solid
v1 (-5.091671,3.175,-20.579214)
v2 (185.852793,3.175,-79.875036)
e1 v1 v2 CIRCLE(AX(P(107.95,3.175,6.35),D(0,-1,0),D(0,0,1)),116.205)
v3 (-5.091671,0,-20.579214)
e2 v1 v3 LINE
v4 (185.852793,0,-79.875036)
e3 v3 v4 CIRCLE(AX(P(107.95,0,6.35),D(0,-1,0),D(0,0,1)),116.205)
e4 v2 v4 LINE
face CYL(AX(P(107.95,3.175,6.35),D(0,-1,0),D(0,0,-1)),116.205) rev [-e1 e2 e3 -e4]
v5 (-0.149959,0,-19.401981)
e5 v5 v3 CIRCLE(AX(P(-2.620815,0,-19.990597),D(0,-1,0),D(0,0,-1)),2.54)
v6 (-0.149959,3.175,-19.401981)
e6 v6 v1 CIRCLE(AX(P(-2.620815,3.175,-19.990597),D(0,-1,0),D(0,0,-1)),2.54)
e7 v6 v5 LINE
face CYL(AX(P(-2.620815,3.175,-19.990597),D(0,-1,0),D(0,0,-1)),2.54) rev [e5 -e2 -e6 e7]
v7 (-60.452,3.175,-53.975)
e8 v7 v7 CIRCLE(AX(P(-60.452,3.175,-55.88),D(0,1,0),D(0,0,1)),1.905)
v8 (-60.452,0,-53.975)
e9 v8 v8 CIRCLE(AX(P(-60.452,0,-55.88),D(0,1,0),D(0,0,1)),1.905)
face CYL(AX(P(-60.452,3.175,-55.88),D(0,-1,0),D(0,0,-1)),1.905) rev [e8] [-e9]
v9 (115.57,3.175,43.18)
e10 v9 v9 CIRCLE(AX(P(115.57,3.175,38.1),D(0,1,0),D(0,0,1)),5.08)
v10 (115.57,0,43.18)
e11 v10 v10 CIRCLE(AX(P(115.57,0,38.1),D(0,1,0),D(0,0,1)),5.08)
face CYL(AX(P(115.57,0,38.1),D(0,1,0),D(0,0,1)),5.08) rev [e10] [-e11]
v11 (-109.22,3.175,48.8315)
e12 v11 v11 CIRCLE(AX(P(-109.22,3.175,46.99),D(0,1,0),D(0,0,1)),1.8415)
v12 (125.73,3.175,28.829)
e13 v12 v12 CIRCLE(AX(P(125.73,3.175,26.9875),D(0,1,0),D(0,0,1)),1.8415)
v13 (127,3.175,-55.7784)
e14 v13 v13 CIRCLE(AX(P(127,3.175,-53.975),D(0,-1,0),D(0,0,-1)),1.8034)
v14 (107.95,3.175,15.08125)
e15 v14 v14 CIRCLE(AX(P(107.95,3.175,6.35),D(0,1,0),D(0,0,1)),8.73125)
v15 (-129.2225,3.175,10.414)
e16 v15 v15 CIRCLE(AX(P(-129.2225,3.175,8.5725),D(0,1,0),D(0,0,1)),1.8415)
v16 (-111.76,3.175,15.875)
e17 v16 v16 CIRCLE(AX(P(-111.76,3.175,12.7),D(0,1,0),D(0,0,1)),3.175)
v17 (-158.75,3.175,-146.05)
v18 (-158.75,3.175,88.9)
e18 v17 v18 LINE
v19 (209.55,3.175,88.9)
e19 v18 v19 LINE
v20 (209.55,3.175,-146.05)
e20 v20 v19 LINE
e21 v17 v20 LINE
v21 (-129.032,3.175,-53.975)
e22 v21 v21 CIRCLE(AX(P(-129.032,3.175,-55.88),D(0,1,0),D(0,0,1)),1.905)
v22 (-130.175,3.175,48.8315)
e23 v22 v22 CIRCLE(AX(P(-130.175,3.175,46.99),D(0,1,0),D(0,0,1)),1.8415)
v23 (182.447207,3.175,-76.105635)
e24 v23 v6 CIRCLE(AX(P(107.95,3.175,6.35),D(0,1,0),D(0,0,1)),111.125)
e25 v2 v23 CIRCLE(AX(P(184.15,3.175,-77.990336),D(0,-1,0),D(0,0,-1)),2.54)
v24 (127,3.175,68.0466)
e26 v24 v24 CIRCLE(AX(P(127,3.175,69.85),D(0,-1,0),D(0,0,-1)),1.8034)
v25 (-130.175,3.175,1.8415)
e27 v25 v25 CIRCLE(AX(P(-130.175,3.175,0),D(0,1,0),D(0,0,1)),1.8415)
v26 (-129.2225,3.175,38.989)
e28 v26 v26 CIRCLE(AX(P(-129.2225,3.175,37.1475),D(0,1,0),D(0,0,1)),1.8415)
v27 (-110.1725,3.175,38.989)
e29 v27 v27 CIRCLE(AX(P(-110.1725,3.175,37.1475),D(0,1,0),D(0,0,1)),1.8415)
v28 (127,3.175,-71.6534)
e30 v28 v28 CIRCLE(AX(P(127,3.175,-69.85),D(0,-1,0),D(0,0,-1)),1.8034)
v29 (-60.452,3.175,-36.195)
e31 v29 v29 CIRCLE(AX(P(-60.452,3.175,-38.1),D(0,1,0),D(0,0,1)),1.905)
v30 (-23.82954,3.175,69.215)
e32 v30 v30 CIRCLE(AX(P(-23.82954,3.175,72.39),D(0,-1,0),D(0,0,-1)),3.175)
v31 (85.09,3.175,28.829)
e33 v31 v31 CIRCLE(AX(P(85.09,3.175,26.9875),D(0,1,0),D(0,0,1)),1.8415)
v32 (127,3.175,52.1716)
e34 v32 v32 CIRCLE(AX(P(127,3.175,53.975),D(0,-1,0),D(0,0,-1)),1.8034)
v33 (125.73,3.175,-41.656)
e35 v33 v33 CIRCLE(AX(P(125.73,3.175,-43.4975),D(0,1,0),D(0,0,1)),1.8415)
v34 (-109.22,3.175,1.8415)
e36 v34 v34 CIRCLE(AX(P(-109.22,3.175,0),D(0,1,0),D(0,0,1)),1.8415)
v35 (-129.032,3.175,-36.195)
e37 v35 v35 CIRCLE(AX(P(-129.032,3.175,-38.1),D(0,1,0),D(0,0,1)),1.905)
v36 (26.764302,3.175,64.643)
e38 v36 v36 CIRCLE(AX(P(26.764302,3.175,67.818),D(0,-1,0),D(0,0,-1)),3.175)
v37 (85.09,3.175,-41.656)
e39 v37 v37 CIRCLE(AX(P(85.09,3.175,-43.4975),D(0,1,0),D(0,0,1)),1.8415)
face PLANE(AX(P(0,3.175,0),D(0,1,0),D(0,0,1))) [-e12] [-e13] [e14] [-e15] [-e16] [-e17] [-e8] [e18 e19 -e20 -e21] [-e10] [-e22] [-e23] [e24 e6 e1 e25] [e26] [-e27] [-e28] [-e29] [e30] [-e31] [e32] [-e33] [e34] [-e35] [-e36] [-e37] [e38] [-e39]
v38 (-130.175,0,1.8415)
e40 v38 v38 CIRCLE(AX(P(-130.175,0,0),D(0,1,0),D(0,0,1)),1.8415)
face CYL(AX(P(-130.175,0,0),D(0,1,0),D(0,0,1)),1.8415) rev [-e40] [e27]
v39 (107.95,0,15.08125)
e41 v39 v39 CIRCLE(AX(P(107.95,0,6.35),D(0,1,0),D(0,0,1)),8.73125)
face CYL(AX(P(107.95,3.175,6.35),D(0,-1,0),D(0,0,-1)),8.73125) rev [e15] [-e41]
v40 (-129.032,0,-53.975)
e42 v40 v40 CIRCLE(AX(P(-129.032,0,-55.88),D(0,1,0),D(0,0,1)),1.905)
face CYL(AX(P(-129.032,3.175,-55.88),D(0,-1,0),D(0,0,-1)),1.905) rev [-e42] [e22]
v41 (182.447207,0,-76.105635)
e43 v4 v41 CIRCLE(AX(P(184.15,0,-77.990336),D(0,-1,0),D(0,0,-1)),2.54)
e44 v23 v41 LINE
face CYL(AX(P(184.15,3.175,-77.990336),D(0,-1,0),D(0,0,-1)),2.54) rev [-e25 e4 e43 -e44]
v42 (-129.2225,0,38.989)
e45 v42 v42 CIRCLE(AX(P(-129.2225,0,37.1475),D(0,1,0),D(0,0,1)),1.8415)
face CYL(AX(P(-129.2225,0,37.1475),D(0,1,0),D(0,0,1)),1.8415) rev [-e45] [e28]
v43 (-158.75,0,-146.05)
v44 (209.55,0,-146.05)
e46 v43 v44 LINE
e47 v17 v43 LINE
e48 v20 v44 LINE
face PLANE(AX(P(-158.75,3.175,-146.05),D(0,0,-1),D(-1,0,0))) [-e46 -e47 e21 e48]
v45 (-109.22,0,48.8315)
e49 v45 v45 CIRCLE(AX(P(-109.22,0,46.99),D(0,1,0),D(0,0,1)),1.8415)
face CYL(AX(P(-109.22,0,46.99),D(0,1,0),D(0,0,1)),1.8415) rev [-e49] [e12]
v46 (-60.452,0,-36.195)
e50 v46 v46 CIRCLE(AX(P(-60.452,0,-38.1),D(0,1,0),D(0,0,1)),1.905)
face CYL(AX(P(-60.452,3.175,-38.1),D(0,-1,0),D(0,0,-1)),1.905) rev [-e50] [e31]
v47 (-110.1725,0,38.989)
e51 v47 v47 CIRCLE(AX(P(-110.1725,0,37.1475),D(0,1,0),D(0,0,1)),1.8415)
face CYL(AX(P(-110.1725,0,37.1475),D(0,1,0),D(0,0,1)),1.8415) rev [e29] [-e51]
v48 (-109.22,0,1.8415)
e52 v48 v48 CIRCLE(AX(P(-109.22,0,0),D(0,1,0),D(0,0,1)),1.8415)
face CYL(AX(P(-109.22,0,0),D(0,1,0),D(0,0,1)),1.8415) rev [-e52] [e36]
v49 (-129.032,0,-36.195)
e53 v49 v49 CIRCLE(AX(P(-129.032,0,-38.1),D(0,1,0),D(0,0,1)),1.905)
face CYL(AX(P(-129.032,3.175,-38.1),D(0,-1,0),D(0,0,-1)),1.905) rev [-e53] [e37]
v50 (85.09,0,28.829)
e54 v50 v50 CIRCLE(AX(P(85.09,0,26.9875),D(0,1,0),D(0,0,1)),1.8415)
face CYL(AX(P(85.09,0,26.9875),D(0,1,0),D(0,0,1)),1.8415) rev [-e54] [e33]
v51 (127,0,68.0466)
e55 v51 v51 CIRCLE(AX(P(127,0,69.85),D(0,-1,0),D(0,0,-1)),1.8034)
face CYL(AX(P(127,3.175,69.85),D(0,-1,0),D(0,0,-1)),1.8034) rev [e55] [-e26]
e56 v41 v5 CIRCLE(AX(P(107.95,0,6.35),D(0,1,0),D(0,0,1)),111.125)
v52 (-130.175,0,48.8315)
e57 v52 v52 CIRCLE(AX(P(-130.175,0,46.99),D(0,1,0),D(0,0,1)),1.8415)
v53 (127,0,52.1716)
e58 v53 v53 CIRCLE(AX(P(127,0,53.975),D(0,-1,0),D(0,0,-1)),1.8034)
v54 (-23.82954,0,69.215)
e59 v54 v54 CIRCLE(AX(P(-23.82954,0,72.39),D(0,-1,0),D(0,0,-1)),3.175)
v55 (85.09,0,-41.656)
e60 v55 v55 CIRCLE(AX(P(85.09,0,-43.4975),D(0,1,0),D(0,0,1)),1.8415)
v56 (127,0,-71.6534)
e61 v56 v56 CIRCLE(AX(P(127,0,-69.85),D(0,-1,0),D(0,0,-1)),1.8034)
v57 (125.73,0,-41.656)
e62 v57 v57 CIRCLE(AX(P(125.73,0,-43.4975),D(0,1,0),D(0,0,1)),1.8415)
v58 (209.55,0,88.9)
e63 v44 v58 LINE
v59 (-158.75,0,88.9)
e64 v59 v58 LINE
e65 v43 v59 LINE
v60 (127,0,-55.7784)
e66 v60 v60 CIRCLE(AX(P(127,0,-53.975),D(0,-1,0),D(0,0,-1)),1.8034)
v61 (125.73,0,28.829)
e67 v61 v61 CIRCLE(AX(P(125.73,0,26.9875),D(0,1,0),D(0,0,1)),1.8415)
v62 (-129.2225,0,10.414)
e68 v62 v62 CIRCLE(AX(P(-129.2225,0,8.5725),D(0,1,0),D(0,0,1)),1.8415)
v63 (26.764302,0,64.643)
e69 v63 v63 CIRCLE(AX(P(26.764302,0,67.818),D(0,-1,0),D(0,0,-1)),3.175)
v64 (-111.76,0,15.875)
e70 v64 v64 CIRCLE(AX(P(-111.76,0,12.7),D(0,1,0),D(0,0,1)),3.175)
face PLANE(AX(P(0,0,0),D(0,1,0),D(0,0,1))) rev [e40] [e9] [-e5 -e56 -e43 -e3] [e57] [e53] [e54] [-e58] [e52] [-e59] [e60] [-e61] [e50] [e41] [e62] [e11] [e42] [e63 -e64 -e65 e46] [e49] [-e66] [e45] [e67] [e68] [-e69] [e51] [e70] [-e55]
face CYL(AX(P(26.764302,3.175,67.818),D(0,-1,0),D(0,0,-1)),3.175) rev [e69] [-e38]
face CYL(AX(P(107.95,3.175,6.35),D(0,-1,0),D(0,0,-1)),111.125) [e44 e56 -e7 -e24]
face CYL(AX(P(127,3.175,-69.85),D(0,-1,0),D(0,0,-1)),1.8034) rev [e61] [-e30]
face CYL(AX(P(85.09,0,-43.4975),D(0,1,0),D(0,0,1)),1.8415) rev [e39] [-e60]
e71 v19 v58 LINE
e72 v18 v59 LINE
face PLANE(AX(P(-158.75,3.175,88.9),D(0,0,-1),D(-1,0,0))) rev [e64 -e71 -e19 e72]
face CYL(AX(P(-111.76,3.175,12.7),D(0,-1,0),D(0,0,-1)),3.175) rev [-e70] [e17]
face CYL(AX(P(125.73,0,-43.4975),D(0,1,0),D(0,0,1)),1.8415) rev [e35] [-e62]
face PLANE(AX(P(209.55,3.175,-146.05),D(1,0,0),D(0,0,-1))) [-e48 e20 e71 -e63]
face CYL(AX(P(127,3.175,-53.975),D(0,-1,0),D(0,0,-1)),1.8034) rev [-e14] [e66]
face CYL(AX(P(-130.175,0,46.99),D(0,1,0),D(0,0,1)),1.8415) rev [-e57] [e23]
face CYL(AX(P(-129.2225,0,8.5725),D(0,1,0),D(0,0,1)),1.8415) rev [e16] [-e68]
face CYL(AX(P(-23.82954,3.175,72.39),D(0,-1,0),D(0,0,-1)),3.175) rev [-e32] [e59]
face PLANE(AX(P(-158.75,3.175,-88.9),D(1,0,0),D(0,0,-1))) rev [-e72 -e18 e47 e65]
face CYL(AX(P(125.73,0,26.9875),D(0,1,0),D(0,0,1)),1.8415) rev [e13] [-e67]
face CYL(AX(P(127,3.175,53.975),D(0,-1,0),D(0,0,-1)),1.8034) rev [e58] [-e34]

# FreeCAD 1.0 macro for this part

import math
import FreeCAD as App
import Part
import Sketcher

V = App.Vector
Q = App.Units.Quantity


def add_polygon(sketch, points):
    """Adds a closed chain of lines whose ends are joined by coincident constraints."""
    first, n = sketch.GeometryCount, len(points)
    for a, b in zip(points, points[1:] + points[:1]):
        sketch.addGeometry(Part.LineSegment(App.Vector(*a, 0), App.Vector(*b, 0)), False)
    for i in range(n):
        sketch.addConstraint(Sketcher.Constraint("Coincident", first + i, 2, first + (i + 1) % n, 1))

doc = App.newDocument("Part")
body = doc.addObject("PartDesign::Body", "Body")

sketch1 = body.newObject("Sketcher::SketchObject", "Sketch")
sketch1.AttachmentSupport = (doc.getObject("XZ_Plane"), [""])
sketch1.MapMode = "FlatFace"
add_polygon(sketch1, [(-158.75, -88.9), (-158.75, 88.9), (158.75, 88.9), (158.75, -88.9)])
sketch1.addGeometry(Part.Circle(V(-111.76, 12.7, 0), V(0, 0, 1), 3.175), False)
sketch1.addGeometry(Part.Circle(V(107.95, 6.35, 0), V(0, 0, 1), 8.73125), False)
sketch1.addGeometry(Part.Circle(V(-129.032, -38.1, 0), V(0, 0, 1), 1.905), False)
sketch1.addGeometry(Part.Circle(V(-60.452, -38.1, 0), V(0, 0, 1), 1.905), False)
sketch1.addGeometry(Part.Circle(V(-129.032, -55.88, 0), V(0, 0, 1), 1.905), False)
sketch1.addGeometry(Part.Circle(V(-60.452, -55.88, 0), V(0, 0, 1), 1.905), False)
sketch1.addConstraint([
    Sketcher.Constraint("Vertical", 0),
    Sketcher.Constraint("Horizontal", 1),
    Sketcher.Constraint("Vertical", 2),
    Sketcher.Constraint("Horizontal", 3),
    Sketcher.Constraint("Equal", 6, 7),
    Sketcher.Constraint("Equal", 7, 8),
    Sketcher.Constraint("Equal", 8, 9),
    Sketcher.Constraint("Symmetric", 0, 2, 2, 2, -1, 1),
    Sketcher.Constraint("Horizontal", 6, 3, 7, 3),
    Sketcher.Constraint("Horizontal", 8, 3, 9, 3),
    Sketcher.Constraint("Vertical", 6, 3, 8, 3),
    Sketcher.Constraint("Vertical", 7, 3, 9, 3),
    Sketcher.Constraint("Diameter", 4, Q("0.25 in")),
    Sketcher.Constraint("Diameter", 6, Q("0.15 in")),
    Sketcher.Constraint("DistanceY", 0, 1, 0, 2, Q("7 in")),
    Sketcher.Constraint("Diameter", 5, Q("0.6875 in")),
    Sketcher.Constraint("DistanceX", 1, 1, 1, 2, Q("12.5 in")),
    Sketcher.Constraint("DistanceY", 6, 3, 4, 3, Q("2 in")),
    Sketcher.Constraint("DistanceY", 4, 3, 0, 2, Q("3 in")),
    Sketcher.Constraint("DistanceX", 5, 3, 1, 2, Q("2 in")),
    Sketcher.Constraint("DistanceX", 4, 3, -1, 1, Q("4.4 in")),
    Sketcher.Constraint("DistanceY", 8, 3, -1, 1, Q("2.2 in")),
    Sketcher.Constraint("DistanceX", 6, 3, 7, 3, Q("2.7 in")),
    Sketcher.Constraint("DistanceY", -1, 1, 5, 3, Q("0.25 in")),
    Sketcher.Constraint("DistanceX", 6, 3, -1, 1, Q("5.08 in")),
])
pad1 = body.newObject("PartDesign::Pad", "Pad")
pad1.Profile = sketch1
pad1.Length = Q("0.125 in")
pad1.Reversed = True

sketch2 = body.newObject("Sketcher::SketchObject", "Sketch001")
sketch2.AttachmentSupport = (doc.getObject("XZ_Plane"), [""])
sketch2.MapMode = "FlatFace"
sketch2.addGeometry([
    Part.Circle(V(-23.82954, 72.39, 0), V(0, 0, 1), 3.175),
    Part.Circle(V(26.764302, 67.818, 0), V(0, 0, 1), 3.175),
], False)
sketch2.addConstraint([
    Sketcher.Constraint("Equal", 0, 1),
    Sketcher.Constraint("Diameter", 0, Q("0.25 in")),
    Sketcher.Constraint("DistanceY", -1, 1, 0, 3, Q("2.85 in")),
    Sketcher.Constraint("DistanceY", -1, 1, 1, 3, Q("2.67 in")),
    Sketcher.Constraint("DistanceX", 0, 3, -1, 1, 23.82954),
    Sketcher.Constraint("DistanceX", 0, 3, 1, 3, 50.593842),
])
pocket1 = body.newObject("PartDesign::Pocket", "Pocket")
pocket1.Profile = sketch2
pocket1.Type = "ThroughAll"

sketch3 = body.newObject("Sketcher::SketchObject", "Sketch002")
sketch3.AttachmentSupport = (doc.getObject("XZ_Plane"), [""])
sketch3.MapMode = "FlatFace"
sketch3.AttachmentOffset = App.Placement(V(0, 0, -0.125 * 25.4), App.Rotation())
add_polygon(sketch3, [(133.35, -88.9), (133.35, 88.9), (158.75, 88.9), (158.75, -88.9)])
sketch3.addConstraint([
    Sketcher.Constraint("Vertical", 0),
    Sketcher.Constraint("Horizontal", 1),
    Sketcher.Constraint("Vertical", 2),
    Sketcher.Constraint("Horizontal", 3),
    Sketcher.Constraint("DistanceX", 1, 1, 1, 2, Q("1 in")),
    Sketcher.Constraint("DistanceY", 0, 1, 0, 2, Q("7 in")),
    Sketcher.Constraint("DistanceY", -1, 1, 0, 2, Q("3.5 in")),
    Sketcher.Constraint("DistanceX", -1, 1, 0, 2, Q("5.25 in")),
])
pocket2 = body.newObject("PartDesign::Pocket", "Pocket001")
pocket2.Profile = sketch3
pocket2.Type = "ThroughAll"
pocket2.Reversed = True

sketch4 = body.newObject("Sketcher::SketchObject", "Sketch003")
sketch4.AttachmentSupport = (doc.getObject("XZ_Plane"), [""])
sketch4.MapMode = "FlatFace"
sketch4.AttachmentOffset = App.Placement(V(0, 0, -0.125 * 25.4), App.Rotation())
sketch4.addGeometry(Part.Circle(V(115.57, 38.1, 0), V(0, 0, 1), 5.08), False)
sketch4.addConstraint([
    Sketcher.Constraint("Diameter", 0, Q("0.4 in")),
    Sketcher.Constraint("DistanceY", -1, 1, 0, 3, Q("1.5 in")),
    Sketcher.Constraint("DistanceX", -1, 1, 0, 3, Q("4.55 in")),
])
pocket3 = body.newObject("PartDesign::Pocket", "Pocket002")
pocket3.Profile = sketch4
pocket3.Type = "ThroughAll"
pocket3.Reversed = True

sketch5 = body.newObject("Sketcher::SketchObject", "Sketch004")
sketch5.AttachmentSupport = (doc.getObject("XZ_Plane"), [""])
sketch5.MapMode = "FlatFace"
sketch5.addGeometry([
    Part.Circle(V(127, 69.85, 0), V(0, 0, 1), 1.8034),
    Part.Circle(V(127, 53.975, 0), V(0, 0, 1), 1.8034),
    Part.Circle(V(127, -53.975, 0), V(0, 0, 1), 1.8034),
    Part.Circle(V(127, -69.85, 0), V(0, 0, 1), 1.8034),
], False)
sketch5.addConstraint([
    Sketcher.Constraint("Equal", 0, 1),
    Sketcher.Constraint("Equal", 1, 2),
    Sketcher.Constraint("Equal", 2, 3),
    Sketcher.Constraint("Symmetric", 1, 3, 2, 3, -1),
    Sketcher.Constraint("Symmetric", 0, 3, 3, 3, -1),
    Sketcher.Constraint("Vertical", 0, 3, 1, 3),
    Sketcher.Constraint("Diameter", 0, Q("0.142 in")),
    Sketcher.Constraint("DistanceX", -1, 1, 0, 3, Q("5 in")),
    Sketcher.Constraint("DistanceY", 3, 3, 0, 3, Q("5.5 in")),
    Sketcher.Constraint("DistanceY", 2, 3, 1, 3, Q("4.25 in")),
])
pocket4 = body.newObject("PartDesign::Pocket", "Pocket003")
pocket4.Profile = sketch5
pocket4.Type = "ThroughAll"

sketch6 = body.newObject("Sketcher::SketchObject", "Sketch005")
sketch6.AttachmentSupport = (doc.getObject("XZ_Plane"), [""])
sketch6.MapMode = "FlatFace"
sketch6.AttachmentOffset = App.Placement(V(0, 0, -0.125 * 25.4), App.Rotation())
sketch6.addGeometry([
    Part.Circle(V(125.73, -43.4975, 0), V(0, 0, 1), 1.8415),
    Part.Circle(V(85.09, -43.4975, 0), V(0, 0, 1), 1.8415),
    Part.Circle(V(85.09, 26.9875, 0), V(0, 0, 1), 1.8415),
    Part.Circle(V(125.73, 26.9875, 0), V(0, 0, 1), 1.8415),
    Part.Circle(V(-130.175, 46.99, 0), V(0, 0, 1), 1.8415),
    Part.Circle(V(-109.22, 46.99, 0), V(0, 0, 1), 1.8415),
    Part.Circle(V(-129.2225, 37.1475, 0), V(0, 0, 1), 1.8415),
    Part.Circle(V(-110.1725, 37.1475, 0), V(0, 0, 1), 1.8415),
    Part.Circle(V(-129.2225, 8.5725, 0), V(0, 0, 1), 1.8415),
    Part.Circle(V(-130.175, 0, 0), V(0, 0, 1), 1.8415),
    Part.Circle(V(-109.22, 0, 0), V(0, 0, 1), 1.8415),
], False)
sketch6.addConstraint([
    Sketcher.Constraint("Equal", 0, 1),
    Sketcher.Constraint("Equal", 1, 2),
    Sketcher.Constraint("Equal", 2, 3),
    Sketcher.Constraint("Equal", 3, 4),
    Sketcher.Constraint("Equal", 4, 5),
    Sketcher.Constraint("Equal", 5, 6),
    Sketcher.Constraint("Equal", 6, 7),
    Sketcher.Constraint("Equal", 7, 8),
    Sketcher.Constraint("Equal", 8, 9),
    Sketcher.Constraint("Equal", 9, 10),
    Sketcher.Constraint("PointOnObject", 9, 3, -1),
    Sketcher.Constraint("PointOnObject", 10, 3, -1),
    Sketcher.Constraint("Horizontal", 0, 3, 1, 3),
    Sketcher.Constraint("Horizontal", 2, 3, 3, 3),
    Sketcher.Constraint("Horizontal", 4, 3, 5, 3),
    Sketcher.Constraint("Horizontal", 6, 3, 7, 3),
    Sketcher.Constraint("Vertical", 1, 3, 2, 3),
    Sketcher.Constraint("Vertical", 0, 3, 3, 3),
    Sketcher.Constraint("Vertical", 6, 3, 8, 3),
    Sketcher.Constraint("Vertical", 4, 3, 9, 3),
    Sketcher.Constraint("Vertical", 5, 3, 10, 3),
    Sketcher.Constraint("Diameter", 0, Q("0.145 in")),
    Sketcher.Constraint("DistanceX", 5, 3, -1, 1, Q("4.3 in")),
    Sketcher.Constraint("DistanceX", 1, 3, 0, 3, Q("1.6 in")),
    Sketcher.Constraint("DistanceY", 2, 3, 6, 3, Q("0.4 in")),
    Sketcher.Constraint("DistanceX", -1, 1, 0, 3, Q("4.95 in")),
    Sketcher.Constraint("DistanceY", -1, 1, 4, 3, Q("1.85 in")),
    Sketcher.Constraint("DistanceX", 6, 3, 7, 3, Q("0.75 in")),
    Sketcher.Constraint("DistanceY", -1, 1, 2, 3, Q("1.0625 in")),
    Sketcher.Constraint("DistanceX", 4, 3, -1, 1, Q("5.125 in")),
    Sketcher.Constraint("DistanceY", 1, 3, 2, 3, Q("2.775 in")),
    Sketcher.Constraint("DistanceX", 6, 3, 2, 3, Q("8.4375 in")),
    Sketcher.Constraint("DistanceY", 8, 3, 6, 3, Q("1.125 in")),
])
pocket5 = body.newObject("PartDesign::Pocket", "Pocket004")
pocket5.Profile = sketch6
pocket5.Type = "ThroughAll"
pocket5.Reversed = True

sketch7 = body.newObject("Sketcher::SketchObject", "Sketch006")
sketch7.AttachmentSupport = (doc.getObject("XZ_Plane"), [""])
sketch7.MapMode = "FlatFace"
add_polygon(sketch7, [(133.35, 88.9), (133.35, -88.9), (-158.75, -88.9), (-158.75, -146.05), (209.55, -146.05), (209.55, 88.9)])
sketch7.addConstraint([
    Sketcher.Constraint("Vertical", 0),
    Sketcher.Constraint("Horizontal", 1),
    Sketcher.Constraint("Vertical", 2),
    Sketcher.Constraint("Horizontal", 3),
    Sketcher.Constraint("Vertical", 4),
    Sketcher.Constraint("Horizontal", 5),
    Sketcher.Constraint("DistanceX", 5, 2, 5, 1, Q("3 in")),
    Sketcher.Constraint("DistanceY", 0, 2, 0, 1, Q("7 in")),
    Sketcher.Constraint("DistanceX", 1, 2, 1, 1, Q("11.5 in")),
    Sketcher.Constraint("DistanceY", 2, 2, 2, 1, Q("2.25 in")),
    Sketcher.Constraint("DistanceY", 0, 2, -1, 1, Q("3.5 in")),
    Sketcher.Constraint("DistanceX", -1, 1, 0, 2, Q("5.25 in")),
])
pad2 = body.newObject("PartDesign::Pad", "Pad001")
pad2.Profile = sketch7
pad2.Type = "UpToLast"
pad2.Reversed = True

sketch8 = body.newObject("Sketcher::SketchObject", "Sketch007")
sketch8.AttachmentSupport = (doc.getObject("XZ_Plane"), [""])
sketch8.MapMode = "FlatFace"
sketch8.addGeometry([
    Part.ArcOfCircle(Part.Circle(V(184.15, -77.990336, 0), V(0, 0, 1), 2.54), math.radians(-47.902746), math.radians(132.097254)),
    Part.ArcOfCircle(Part.Circle(V(107.95, 6.35, 0), V(0, 0, 1), 111.125), math.radians(-166.600533), math.radians(-47.902746)),
    Part.ArcOfCircle(Part.Circle(V(-2.620815, -19.990597, 0), V(0, 0, 1), 2.54), math.radians(13.399467), math.radians(193.399467)),
    Part.ArcOfCircle(Part.Circle(V(107.95, 6.35, 0), V(0, 0, 1), 116.205), math.radians(-166.600533), math.radians(-47.902746)),
], False)
sketch8.addConstraint([
    Sketcher.Constraint("Tangent", 0, 2, 1, 2),
    Sketcher.Constraint("Tangent", 1, 1, 2, 1),
    Sketcher.Constraint("Tangent", 2, 2, 3, 1),
    Sketcher.Constraint("Tangent", 3, 2, 0, 1),
    Sketcher.Constraint("Coincident", 3, 3, 1, 3),
    Sketcher.Constraint("Radius", 0, Q("0.1 in")),
    Sketcher.Constraint("Radius", 1, Q("4.375 in")),
    Sketcher.Constraint("DistanceX", 1, 3, 0, 3, Q("3 in")),
    Sketcher.Constraint("DistanceX", -1, 1, 0, 3, Q("7.25 in")),
    Sketcher.Constraint("DistanceY", -1, 1, 1, 3, Q("0.25 in")),
    Sketcher.Constraint("DistanceX", 1, 1, -1, 1, 0.149959),
])
pocket6 = body.newObject("PartDesign::Pocket", "Pocket005")
pocket6.Profile = sketch8
pocket6.Type = "ThroughAll"

doc.recompute()
